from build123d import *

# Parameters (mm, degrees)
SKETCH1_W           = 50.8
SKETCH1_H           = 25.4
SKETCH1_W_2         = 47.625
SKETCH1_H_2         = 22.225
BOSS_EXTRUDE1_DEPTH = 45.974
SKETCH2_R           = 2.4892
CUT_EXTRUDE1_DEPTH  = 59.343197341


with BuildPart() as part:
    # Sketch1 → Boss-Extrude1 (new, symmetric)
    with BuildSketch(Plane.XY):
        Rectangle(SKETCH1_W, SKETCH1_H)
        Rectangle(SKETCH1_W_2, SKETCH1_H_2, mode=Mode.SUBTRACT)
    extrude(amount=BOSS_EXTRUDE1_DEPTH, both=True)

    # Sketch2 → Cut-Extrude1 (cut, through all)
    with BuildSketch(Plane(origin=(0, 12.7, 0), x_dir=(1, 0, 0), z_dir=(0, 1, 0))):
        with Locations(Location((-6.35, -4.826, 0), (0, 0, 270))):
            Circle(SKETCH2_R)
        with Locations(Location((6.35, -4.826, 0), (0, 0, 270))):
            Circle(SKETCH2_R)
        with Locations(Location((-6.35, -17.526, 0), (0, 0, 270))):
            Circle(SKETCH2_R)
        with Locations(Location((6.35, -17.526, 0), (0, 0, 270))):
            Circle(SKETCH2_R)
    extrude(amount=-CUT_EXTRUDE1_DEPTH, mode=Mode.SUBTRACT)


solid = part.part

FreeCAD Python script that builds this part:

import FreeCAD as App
import Part
import Sketcher

V = App.Vector
Q = App.Units.Quantity


def add_polygon(sketch, points):
    """Adds a closed chain of lines whose ends are joined by coincident constraints."""
    first, n = sketch.GeometryCount, len(points)
    for a, b in zip(points, points[1:] + points[:1]):
        sketch.addGeometry(Part.LineSegment(App.Vector(*a, 0), App.Vector(*b, 0)), False)
    for i in range(n):
        sketch.addConstraint(Sketcher.Constraint("Coincident", first + i, 2, first + (i + 1) % n, 1))

doc = App.newDocument("Part")
body = doc.addObject("PartDesign::Body", "Body")

sketch1 = doc.addObject("Sketcher::SketchObject", "Sketch")
body.addObject(sketch1)
sketch1.AttachmentSupport = (doc.XY_Plane, [""])
sketch1.MapMode = "FlatFace"
add_polygon(sketch1, [(-25, 13), (-25, -13), (25, -13), (25, 13)])
add_polygon(sketch1, [(24, -11), (-24, -11), (-24, 11), (24, 11)])
sketch1.addConstraint([
    Sketcher.Constraint("Vertical", 0),
    Sketcher.Constraint("Horizontal", 1),
    Sketcher.Constraint("Vertical", 2),
    Sketcher.Constraint("Horizontal", 3),
    Sketcher.Constraint("Horizontal", 4),
    Sketcher.Constraint("Vertical", 5),
    Sketcher.Constraint("Horizontal", 6),
    Sketcher.Constraint("Vertical", 7),
    Sketcher.Constraint("Symmetric", 0, 2, 2, 2, -1, 1),
    Sketcher.Constraint("Symmetric", 4, 2, 6, 2, -1, 1),
    Sketcher.Constraint("DistanceX", 1, 1, 1, 2, Q("2 in")),
    Sketcher.Constraint("DistanceY", 0, 2, 0, 1, Q("1 in")),
    Sketcher.Constraint("DistanceX", 4, 2, 4, 1, Q("1.875 in")),
    Sketcher.Constraint("DistanceY", 5, 1, 5, 2, Q("0.875 in")),
])
pad1 = doc.addObject("PartDesign::Pad", "Pad")
body.addObject(pad1)
pad1.Profile = sketch1
pad1.Length = Q("3.62 in")
pad1.Midplane = True

sketch2 = doc.addObject("Sketcher::SketchObject", "Sketch001")
body.addObject(sketch2)
sketch2.AttachmentSupport = (doc.XZ_Plane, [""])
sketch2.MapMode = "FlatFace"
sketch2.AttachmentOffset = App.Placement(V(0, 0, -0.5 * 25.4), App.Rotation())
sketch2.addGeometry([
    Part.Circle(V(-6.3, 4.8, 0), V(0, 0, 1), 2.5),
    Part.Circle(V(6.3, 4.8, 0), V(0, 0, 1), 2.5),
    Part.Circle(V(-6.3, 17.5, 0), V(0, 0, 1), 2.5),
    Part.Circle(V(6.3, 17.5, 0), V(0, 0, 1), 2.5),
], False)
sketch2.addConstraint([
    Sketcher.Constraint("Equal", 0, 1),
    Sketcher.Constraint("Equal", 1, 2),
    Sketcher.Constraint("Equal", 2, 3),
    Sketcher.Constraint("Symmetric", 0, 3, 1, 3, -2),
    Sketcher.Constraint("Symmetric", 2, 3, 3, 3, -2),
    Sketcher.Constraint("Vertical", 0, 3, 2, 3),
    Sketcher.Constraint("Diameter", 0, Q("0.196 in")),
    Sketcher.Constraint("DistanceX", 0, 3, 1, 3, Q("0.5 in")),
    Sketcher.Constraint("DistanceY", 0, 3, 2, 3, Q("0.5 in")),
    Sketcher.Constraint("DistanceY", -1, 1, 0, 3, Q("0.19 in")),
])
pocket1 = doc.addObject("PartDesign::Pocket", "Pocket")
body.addObject(pocket1)
pocket1.Profile = sketch2
pocket1.Type = "ThroughAll"
pocket1.Reversed = True

doc.recompute()
